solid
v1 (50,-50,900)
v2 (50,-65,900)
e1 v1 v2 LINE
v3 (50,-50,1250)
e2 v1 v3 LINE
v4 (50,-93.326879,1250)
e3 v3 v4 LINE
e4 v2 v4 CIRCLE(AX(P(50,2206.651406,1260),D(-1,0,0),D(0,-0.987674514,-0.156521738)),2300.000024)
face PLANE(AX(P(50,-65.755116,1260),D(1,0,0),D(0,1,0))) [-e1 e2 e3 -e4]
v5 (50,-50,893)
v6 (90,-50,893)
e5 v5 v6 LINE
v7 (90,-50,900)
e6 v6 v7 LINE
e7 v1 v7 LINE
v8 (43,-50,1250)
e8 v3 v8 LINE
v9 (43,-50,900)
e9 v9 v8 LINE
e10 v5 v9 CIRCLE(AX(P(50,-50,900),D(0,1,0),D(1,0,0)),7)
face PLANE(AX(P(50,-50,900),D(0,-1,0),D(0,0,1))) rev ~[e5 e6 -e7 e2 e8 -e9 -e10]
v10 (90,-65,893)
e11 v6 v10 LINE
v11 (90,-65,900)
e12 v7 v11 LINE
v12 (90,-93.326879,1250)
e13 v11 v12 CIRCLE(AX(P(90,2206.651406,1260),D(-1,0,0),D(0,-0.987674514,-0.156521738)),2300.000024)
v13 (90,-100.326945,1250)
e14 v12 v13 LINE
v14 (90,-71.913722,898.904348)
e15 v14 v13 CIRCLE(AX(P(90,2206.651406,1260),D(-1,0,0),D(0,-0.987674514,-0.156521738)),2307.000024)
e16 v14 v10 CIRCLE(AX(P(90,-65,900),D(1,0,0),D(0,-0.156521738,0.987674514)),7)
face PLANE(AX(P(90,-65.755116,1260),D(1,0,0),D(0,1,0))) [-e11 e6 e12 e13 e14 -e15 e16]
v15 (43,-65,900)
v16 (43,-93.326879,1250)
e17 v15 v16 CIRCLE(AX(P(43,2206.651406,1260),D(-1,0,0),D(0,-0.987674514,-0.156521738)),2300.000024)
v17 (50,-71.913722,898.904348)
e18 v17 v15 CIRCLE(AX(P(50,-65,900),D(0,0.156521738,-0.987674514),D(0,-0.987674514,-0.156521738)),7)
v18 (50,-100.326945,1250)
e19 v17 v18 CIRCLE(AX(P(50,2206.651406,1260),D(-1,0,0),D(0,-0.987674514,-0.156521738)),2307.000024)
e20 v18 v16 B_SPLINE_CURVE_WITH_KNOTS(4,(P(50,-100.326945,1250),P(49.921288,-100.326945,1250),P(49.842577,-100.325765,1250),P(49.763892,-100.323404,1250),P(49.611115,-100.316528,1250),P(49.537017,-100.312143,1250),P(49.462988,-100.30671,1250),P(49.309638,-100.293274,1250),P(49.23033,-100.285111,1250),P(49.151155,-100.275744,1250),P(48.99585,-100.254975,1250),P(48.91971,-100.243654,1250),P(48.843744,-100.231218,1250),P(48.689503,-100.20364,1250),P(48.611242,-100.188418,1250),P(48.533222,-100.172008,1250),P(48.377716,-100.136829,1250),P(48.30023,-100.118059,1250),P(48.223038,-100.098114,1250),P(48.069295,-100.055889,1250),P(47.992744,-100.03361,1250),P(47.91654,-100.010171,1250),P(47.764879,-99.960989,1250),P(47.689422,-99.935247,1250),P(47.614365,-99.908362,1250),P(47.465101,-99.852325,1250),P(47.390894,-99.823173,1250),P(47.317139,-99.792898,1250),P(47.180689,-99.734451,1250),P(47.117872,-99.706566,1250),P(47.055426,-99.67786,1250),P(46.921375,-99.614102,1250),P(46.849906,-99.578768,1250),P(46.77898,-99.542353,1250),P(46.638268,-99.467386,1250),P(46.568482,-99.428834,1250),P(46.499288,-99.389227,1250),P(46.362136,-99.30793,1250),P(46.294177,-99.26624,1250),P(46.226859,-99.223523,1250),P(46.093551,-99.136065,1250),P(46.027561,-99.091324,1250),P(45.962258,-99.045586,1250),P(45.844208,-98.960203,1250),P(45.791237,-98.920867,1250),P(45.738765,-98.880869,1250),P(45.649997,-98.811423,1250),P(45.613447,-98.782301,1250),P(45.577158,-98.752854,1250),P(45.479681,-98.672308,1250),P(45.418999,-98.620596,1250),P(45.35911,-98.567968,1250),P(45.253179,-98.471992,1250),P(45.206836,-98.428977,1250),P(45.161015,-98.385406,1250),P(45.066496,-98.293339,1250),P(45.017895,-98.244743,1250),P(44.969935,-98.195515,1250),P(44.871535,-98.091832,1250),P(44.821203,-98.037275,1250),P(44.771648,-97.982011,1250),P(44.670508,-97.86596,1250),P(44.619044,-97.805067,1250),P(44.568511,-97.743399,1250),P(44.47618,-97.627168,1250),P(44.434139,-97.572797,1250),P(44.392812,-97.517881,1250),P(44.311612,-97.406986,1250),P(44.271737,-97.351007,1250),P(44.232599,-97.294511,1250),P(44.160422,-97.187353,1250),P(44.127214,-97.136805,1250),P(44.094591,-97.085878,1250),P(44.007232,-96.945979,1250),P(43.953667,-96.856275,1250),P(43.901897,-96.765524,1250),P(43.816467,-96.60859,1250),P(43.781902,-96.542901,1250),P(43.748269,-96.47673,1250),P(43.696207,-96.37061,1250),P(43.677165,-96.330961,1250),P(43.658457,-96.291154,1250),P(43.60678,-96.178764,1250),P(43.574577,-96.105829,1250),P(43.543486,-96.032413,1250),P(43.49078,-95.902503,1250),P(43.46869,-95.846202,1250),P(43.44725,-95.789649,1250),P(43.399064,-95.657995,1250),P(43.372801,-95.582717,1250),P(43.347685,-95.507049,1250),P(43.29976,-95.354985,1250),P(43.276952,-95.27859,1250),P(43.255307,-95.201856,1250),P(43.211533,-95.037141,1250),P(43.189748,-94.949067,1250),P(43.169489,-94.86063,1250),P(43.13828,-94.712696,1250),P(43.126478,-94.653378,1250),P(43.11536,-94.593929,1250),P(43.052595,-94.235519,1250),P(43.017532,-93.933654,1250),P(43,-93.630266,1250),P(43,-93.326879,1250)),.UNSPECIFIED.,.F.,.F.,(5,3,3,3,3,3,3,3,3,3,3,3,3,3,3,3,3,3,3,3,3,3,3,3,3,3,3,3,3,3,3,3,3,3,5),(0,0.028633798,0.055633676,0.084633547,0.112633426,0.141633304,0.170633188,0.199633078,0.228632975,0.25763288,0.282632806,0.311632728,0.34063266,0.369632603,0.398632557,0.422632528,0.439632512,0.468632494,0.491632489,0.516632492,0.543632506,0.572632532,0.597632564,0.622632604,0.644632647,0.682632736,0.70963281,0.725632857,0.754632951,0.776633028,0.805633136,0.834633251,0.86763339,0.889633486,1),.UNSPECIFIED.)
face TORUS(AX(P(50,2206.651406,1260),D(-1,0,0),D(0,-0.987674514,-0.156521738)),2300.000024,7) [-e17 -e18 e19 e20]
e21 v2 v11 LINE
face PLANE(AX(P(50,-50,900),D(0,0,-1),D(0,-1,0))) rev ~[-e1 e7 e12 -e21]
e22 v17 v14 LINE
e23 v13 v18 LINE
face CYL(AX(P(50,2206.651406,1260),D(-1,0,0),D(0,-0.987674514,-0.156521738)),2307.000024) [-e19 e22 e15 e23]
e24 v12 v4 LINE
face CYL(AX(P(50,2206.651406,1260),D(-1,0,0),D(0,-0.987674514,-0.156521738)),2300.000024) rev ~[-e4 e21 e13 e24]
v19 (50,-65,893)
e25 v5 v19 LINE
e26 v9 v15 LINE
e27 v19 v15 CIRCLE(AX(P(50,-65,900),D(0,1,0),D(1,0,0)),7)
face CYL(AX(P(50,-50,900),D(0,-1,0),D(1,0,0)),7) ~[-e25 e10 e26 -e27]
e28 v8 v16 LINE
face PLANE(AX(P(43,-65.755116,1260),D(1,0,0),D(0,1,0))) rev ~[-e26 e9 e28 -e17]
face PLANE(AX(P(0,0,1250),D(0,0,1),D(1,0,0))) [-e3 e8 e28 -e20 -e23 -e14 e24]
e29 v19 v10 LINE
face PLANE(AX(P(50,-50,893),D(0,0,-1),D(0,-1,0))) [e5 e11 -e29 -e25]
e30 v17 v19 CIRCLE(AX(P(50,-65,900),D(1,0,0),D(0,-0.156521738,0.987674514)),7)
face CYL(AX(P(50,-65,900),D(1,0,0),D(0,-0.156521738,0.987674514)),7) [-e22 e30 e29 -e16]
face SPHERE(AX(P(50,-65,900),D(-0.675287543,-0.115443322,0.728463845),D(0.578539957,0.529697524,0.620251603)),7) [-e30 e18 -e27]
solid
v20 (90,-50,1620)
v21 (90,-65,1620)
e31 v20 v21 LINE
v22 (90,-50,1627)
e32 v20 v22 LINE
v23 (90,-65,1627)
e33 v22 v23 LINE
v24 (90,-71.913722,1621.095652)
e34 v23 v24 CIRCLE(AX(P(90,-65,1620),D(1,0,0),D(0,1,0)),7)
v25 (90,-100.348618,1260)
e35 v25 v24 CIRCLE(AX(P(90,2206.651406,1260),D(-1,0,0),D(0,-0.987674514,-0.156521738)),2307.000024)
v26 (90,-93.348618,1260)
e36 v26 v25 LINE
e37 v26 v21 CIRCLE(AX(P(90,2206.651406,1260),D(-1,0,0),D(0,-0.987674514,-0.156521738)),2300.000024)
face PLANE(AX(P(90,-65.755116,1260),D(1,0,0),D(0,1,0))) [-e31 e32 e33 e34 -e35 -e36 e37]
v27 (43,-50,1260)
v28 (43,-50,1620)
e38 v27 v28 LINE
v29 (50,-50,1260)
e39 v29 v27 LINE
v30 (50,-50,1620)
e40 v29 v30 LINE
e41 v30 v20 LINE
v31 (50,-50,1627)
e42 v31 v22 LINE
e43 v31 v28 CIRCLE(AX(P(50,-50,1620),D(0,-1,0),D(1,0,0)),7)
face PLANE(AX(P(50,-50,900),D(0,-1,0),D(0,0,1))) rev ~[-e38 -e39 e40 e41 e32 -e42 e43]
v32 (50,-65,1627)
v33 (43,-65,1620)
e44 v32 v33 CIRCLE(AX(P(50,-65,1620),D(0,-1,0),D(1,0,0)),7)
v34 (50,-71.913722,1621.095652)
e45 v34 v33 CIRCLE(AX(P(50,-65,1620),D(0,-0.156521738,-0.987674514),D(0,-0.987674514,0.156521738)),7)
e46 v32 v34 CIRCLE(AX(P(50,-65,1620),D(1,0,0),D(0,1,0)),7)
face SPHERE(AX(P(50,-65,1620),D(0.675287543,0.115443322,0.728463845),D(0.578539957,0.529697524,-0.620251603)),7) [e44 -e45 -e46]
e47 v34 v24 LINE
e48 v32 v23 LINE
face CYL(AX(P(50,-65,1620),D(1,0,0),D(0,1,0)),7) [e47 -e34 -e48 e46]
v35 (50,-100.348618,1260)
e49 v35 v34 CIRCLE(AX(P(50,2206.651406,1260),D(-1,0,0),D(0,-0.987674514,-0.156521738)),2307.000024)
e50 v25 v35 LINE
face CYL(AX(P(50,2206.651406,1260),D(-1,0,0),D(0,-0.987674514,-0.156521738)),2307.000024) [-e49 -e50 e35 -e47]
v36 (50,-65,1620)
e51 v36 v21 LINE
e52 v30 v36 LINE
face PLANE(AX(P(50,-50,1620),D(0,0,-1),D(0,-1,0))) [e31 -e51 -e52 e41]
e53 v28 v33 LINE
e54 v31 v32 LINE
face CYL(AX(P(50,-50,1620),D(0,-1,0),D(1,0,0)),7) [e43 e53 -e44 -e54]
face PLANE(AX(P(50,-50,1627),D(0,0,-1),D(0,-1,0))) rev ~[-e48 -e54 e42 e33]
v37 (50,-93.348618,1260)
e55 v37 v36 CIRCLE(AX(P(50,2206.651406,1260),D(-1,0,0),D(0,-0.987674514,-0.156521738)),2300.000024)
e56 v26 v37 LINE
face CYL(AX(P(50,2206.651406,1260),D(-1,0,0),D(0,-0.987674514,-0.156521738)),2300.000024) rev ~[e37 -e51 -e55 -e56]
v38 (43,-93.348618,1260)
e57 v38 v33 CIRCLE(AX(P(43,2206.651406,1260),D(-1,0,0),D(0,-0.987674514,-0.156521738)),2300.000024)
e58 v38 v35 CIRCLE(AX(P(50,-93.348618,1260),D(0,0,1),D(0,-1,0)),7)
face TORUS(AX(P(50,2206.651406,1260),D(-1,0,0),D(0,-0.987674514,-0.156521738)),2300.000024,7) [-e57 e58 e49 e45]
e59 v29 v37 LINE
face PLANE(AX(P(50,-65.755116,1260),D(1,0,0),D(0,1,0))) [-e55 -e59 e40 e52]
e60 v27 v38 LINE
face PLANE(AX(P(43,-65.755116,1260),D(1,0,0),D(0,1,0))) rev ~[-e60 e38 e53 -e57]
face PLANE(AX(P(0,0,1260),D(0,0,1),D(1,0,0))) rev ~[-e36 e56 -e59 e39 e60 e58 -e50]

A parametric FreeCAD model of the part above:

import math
import FreeCAD as App
import Part
import Sketcher

V = App.Vector


def faces_at(feature, points):
    """Names of the faces that lie closest to the given points."""
    faces = feature.Shape.Faces
    near = lambda p: min(range(len(faces)), key=lambda i: faces[i].distToShape(Part.Vertex(*p))[0])
    return sorted({f"Face{near(p) + 1}" for p in points})


def add_polygon(sketch, points):
    """Adds a closed chain of lines whose ends are joined by coincident constraints."""
    first, n = sketch.GeometryCount, len(points)
    for a, b in zip(points, points[1:] + points[:1]):
        sketch.addGeometry(Part.LineSegment(App.Vector(*a, 0), App.Vector(*b, 0)), False)
    for i in range(n):
        sketch.addConstraint(Sketcher.Constraint("Coincident", first + i, 2, first + (i + 1) % n, 1))

doc = App.newDocument("Part")
body = doc.addObject("PartDesign::Body", "Body")

# Sketch on XZ plane
sketch1 = body.newObject("Sketcher::SketchObject", "Sketch")
sketch1.AttachmentSupport = (doc.getObject("XZ_Plane"), [""])
sketch1.MapMode = "FlatFace"
add_polygon(sketch1, [(0, 10), (0, 0), (1218, 0), (1218, 10)])  # lines 0-3
sketch1.addConstraint([
    Sketcher.Constraint("Vertical", 0),
    Sketcher.Constraint("Horizontal", 1),
    Sketcher.Constraint("Vertical", 2),
    Sketcher.Constraint("Horizontal", 3),
    Sketcher.Constraint("Coincident", 0, 2, -1, 1),
    Sketcher.Constraint("DistanceY", 0, 2, 0, 1, 10.0),
    Sketcher.Constraint("DistanceX", 1, 1, 1, 2, 1217.787964),
])
pad1 = body.newObject("PartDesign::Pad", "Pad")
pad1.Profile = sketch1
pad1.Length = 150
body2 = doc.addObject("PartDesign::Body", "Body001")
doc.recompute()

body.Placement = App.Placement(V(0, 0, 1250), App.Rotation(V(0, 0, 1), 0))
boolean = body2.newObject("PartDesign::Boolean", "Boolean")
boolean.Type = "Fuse"
boolean.addObjects([body])
body3 = doc.addObject("PartDesign::Body", "Body002")

# Sketch on YZ plane
sketch2 = body3.newObject("Sketcher::SketchObject", "Sketch001")
sketch2.AttachmentSupport = (doc.getObject("YZ_Plane002"), [""])
sketch2.MapMode = "FlatFace"
sketch2.addGeometry([
    Part.LineSegment(V(0, 720, 0), V(0, 0, 0)),
    Part.LineSegment(V(0, 0, 0), V(15, 0, 0)),
    Part.ArcOfCircle(Part.Circle(V(-2257, 360, 0), V(0, 0, 1), 2300), math.radians(-9.01), math.radians(9.01)),
    Part.LineSegment(V(15, 720, 0), V(0, 720, 0)),
], False)
sketch2.addConstraint([
    Sketcher.Constraint("Coincident", 0, 2, 1, 1),
    Sketcher.Constraint("Coincident", 1, 2, 2, 1),
    Sketcher.Constraint("Coincident", 2, 2, 3, 1),
    Sketcher.Constraint("Coincident", 3, 2, 0, 1),
    Sketcher.Constraint("Vertical", 0),
    Sketcher.Constraint("Horizontal", 1),
    Sketcher.Constraint("Horizontal", 3),
    Sketcher.Constraint("Coincident", 0, 2, -1, 1),
    Sketcher.Constraint("Equal", 1, 3),
    Sketcher.Constraint("DistanceX", 1, 1, 1, 2, 15.0),
    Sketcher.Constraint("DistanceY", 0, 2, 0, 1, 720.0),
    Sketcher.Constraint("Radius", 2, 2300.000024),
])
pad2 = body3.newObject("PartDesign::Pad", "Pad001")
pad2.Profile = sketch2
pad2.Length = 40
pad2.Reversed = True
doc.recompute()

thickness = body3.newObject("PartDesign::Thickness", "Thickness")
thickness.Base = (pad2, faces_at(pad2, [(-20, 0, 360), (-40, 21.674, 360)]))
thickness.Value = 7
thickness.Reversed = False
thickness.Join = "Arc"
body4 = doc.addObject("PartDesign::Body", "Body003")
body4.AllowCompound = True
doc.recompute()

body3.Placement = App.Placement(V(50, -50, 900), App.Rotation(V(0, 0, -1), 180))
boolean2 = body4.newObject("PartDesign::Boolean", "Boolean001")
boolean2.Type = "Fuse"
boolean2.addObjects([body3])
doc.recompute()

boolean3 = body4.newObject("PartDesign::Boolean", "Boolean002")
boolean3.Type = "Cut"
boolean3.addObjects([body2])

doc.recompute()
